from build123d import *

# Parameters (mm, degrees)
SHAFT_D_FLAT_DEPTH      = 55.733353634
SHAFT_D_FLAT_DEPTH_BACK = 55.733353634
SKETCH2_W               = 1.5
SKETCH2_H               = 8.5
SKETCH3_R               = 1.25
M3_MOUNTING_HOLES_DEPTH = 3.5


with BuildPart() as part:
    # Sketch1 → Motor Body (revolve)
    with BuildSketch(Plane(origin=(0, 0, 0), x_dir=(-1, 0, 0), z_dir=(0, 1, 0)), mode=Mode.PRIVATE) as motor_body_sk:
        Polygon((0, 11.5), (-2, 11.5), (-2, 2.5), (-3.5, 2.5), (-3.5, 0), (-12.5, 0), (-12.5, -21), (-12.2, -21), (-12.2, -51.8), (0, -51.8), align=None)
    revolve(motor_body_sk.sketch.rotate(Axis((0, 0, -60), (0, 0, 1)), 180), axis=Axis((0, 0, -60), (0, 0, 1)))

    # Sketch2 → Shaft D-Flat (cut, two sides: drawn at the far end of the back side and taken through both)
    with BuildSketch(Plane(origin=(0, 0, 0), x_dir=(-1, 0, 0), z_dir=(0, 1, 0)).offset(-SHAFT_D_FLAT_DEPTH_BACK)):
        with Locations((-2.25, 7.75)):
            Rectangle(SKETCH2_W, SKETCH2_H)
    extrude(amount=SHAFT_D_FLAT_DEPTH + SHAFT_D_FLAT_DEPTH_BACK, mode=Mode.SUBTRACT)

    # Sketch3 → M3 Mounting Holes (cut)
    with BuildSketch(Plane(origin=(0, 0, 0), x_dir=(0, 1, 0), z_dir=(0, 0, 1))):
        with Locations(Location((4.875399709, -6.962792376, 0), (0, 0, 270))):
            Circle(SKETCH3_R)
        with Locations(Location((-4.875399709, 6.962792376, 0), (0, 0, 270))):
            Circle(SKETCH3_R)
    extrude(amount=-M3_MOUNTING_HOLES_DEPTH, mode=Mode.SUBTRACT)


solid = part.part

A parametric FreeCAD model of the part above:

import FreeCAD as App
import Part
import Sketcher
from FreeCAD import Vector


def add_polygon(sketch, points):
    """Adds a closed chain of lines whose ends are joined by coincident constraints."""
    first, n = sketch.GeometryCount, len(points)
    for a, b in zip(points, points[1:] + points[:1]):
        sketch.addGeometry(Part.LineSegment(App.Vector(*a, 0), App.Vector(*b, 0)), False)
    for i in range(n):
        sketch.addConstraint(Sketcher.Constraint("Coincident", first + i, 2, first + (i + 1) % n, 1))

doc = App.newDocument("Part")
params = doc.addObject("Spreadsheet::Sheet", "Params")
for row, (alias, value) in enumerate([
    ("sketch1_width", "2 mm"),
    ("sketch1_width2", "9 mm"),
    ("sketch1_height", "21 mm"),
    ("sketch1_width3", "1.5 mm"),
    ("sketch1_width4", "0.3 mm"),
    ("revolution_angle", "360 deg"),
    ("sketch2_width", "1.5 mm"),
    ("sketch2_height", "8.5 mm"),
    ("sketch3_diameter", "2.5 mm"),
    ("pocket2_length", "3.5 mm"),
], start=1):
    params.set(f"A{row}", alias)
    params.set(f"B{row}", "=" + value)
    params.setAlias(f"B{row}", alias)

body = doc.addObject("PartDesign::Body", "Body")

# Sketch on XZ plane
sketch1 = body.newObject("Sketcher::SketchObject", "Sketch")
sketch1.AttachmentSupport = (doc.getObject("XZ_Plane"), [""])
sketch1.MapMode = "FlatFace"
add_polygon(sketch1, [(0, 11.5), (2, 11.5), (2, 2.5), (3.5, 2.5), (3.5, 0), (12.5, 0), (12.5, -21), (12.2, -21), (12.2, -51.8), (0, -51.8)])  # lines 0-9
sketch1.addConstraint(Sketcher.Constraint("Horizontal", 0))
sketch1.addConstraint(Sketcher.Constraint("Vertical", 1))
sketch1.addConstraint(Sketcher.Constraint("Horizontal", 2))
sketch1.addConstraint(Sketcher.Constraint("Vertical", 3))
sketch1.addConstraint(Sketcher.Constraint("Horizontal", 4))
sketch1.addConstraint(Sketcher.Constraint("Vertical", 5))
sketch1.addConstraint(Sketcher.Constraint("Horizontal", 6))
sketch1.addConstraint(Sketcher.Constraint("Vertical", 7))
sketch1.addConstraint(Sketcher.Constraint("Horizontal", 8))
sketch1.addConstraint(Sketcher.Constraint("Vertical", 9))
sketch1.addConstraint(Sketcher.Constraint("PointOnObject", 3, 2, -1))
sketch1.addConstraint(Sketcher.Constraint("PointOnObject", 8, 2, -2))
sketch1.addConstraint(Sketcher.Constraint("Equal", 4, 1))
sketch1.addConstraint(Sketcher.Constraint("DistanceX", 0, 1, 0, 2, 2.0))
sketch1.addConstraint(Sketcher.Constraint("DistanceX", 4, 1, 4, 2, 9.0))
sketch1.addConstraint(Sketcher.Constraint("DistanceY", 5, 2, 5, 1, 21.0))
sketch1.addConstraint(Sketcher.Constraint("DistanceX", 2, 1, 2, 2, 1.5))
sketch1.addConstraint(Sketcher.Constraint("DistanceX", 6, 2, 6, 1, 0.3))
sketch1.addConstraint(Sketcher.Constraint("DistanceY", 3, 2, 3, 1, 2.5))
sketch1.addConstraint(Sketcher.Constraint("DistanceY", 7, 2, 7, 1, 30.8))
sketch1.setExpression("Constraints[23]", "Params.sketch1_width")
sketch1.setExpression("Constraints[24]", "Params.sketch1_width2")
sketch1.setExpression("Constraints[25]", "Params.sketch1_height")
sketch1.setExpression("Constraints[26]", "Params.sketch1_width3")
sketch1.setExpression("Constraints[27]", "Params.sketch1_width4")
revolution = body.newObject("PartDesign::Revolution", "Revolution")
revolution.Profile = sketch1
revolution.ReferenceAxis = (sketch1, ["V_Axis"])
revolution.setExpression("Angle", "Params.revolution_angle")

# Sketch on XZ plane
sketch2 = body.newObject("Sketcher::SketchObject", "Sketch001")
sketch2.AttachmentSupport = (doc.getObject("XZ_Plane"), [""])
sketch2.MapMode = "FlatFace"
add_polygon(sketch2, [(3, 12), (3, 3.5), (1.5, 3.5), (1.5, 12)])  # lines 0-3
sketch2.addConstraint(Sketcher.Constraint("Vertical", 0))
sketch2.addConstraint(Sketcher.Constraint("Horizontal", 1))
sketch2.addConstraint(Sketcher.Constraint("Vertical", 2))
sketch2.addConstraint(Sketcher.Constraint("Horizontal", 3))
sketch2.addConstraint(Sketcher.Constraint("DistanceX", 1, 2, 1, 1, 1.5))
sketch2.addConstraint(Sketcher.Constraint("DistanceY", 0, 2, 0, 1, 8.5))
sketch2.addConstraint(Sketcher.Constraint("DistanceX", -1, 1, 0, 2, 3.0))
sketch2.addConstraint(Sketcher.Constraint("DistanceY", -1, 1, 2, 2, 12.0))
sketch2.setExpression("Constraints[8]", "Params.sketch2_width")
sketch2.setExpression("Constraints[9]", "Params.sketch2_height")
pocket1 = body.newObject("PartDesign::Pocket", "Pocket")
pocket1.Profile = sketch2
pocket1.Type = "ThroughAll"
pocket1.Midplane = True

# Sketch on XY plane
sketch3 = body.newObject("Sketcher::SketchObject", "Sketch002")
sketch3.AttachmentSupport = (doc.getObject("XY_Plane"), [""])
sketch3.MapMode = "FlatFace"
sketch3.addGeometry(Part.Circle(Vector(7, 4.9, 0), Vector(0, 0, 1), 1.2), False)
sketch3.addGeometry(Part.Circle(Vector(-7, -4.9, 0), Vector(0, 0, 1), 1.2), False)
sketch3.addConstraint(Sketcher.Constraint("Equal", 0, 1))
sketch3.addConstraint(Sketcher.Constraint("Symmetric", 0, 3, 1, 3, -1, 1))
sketch3.addConstraint(Sketcher.Constraint("Diameter", 0, 2.5))
sketch3.addConstraint(Sketcher.Constraint("DistanceY", -1, 1, 0, 3, 4.8754))
sketch3.addConstraint(Sketcher.Constraint("DistanceX", -1, 1, 0, 3, 6.962792))
sketch3.setExpression("Constraints[2]", "Params.sketch3_diameter")
pocket2 = body.newObject("PartDesign::Pocket", "Pocket001")
pocket2.Profile = sketch3
pocket2.setExpression("Length", "Params.pocket2_length")

doc.recompute()
